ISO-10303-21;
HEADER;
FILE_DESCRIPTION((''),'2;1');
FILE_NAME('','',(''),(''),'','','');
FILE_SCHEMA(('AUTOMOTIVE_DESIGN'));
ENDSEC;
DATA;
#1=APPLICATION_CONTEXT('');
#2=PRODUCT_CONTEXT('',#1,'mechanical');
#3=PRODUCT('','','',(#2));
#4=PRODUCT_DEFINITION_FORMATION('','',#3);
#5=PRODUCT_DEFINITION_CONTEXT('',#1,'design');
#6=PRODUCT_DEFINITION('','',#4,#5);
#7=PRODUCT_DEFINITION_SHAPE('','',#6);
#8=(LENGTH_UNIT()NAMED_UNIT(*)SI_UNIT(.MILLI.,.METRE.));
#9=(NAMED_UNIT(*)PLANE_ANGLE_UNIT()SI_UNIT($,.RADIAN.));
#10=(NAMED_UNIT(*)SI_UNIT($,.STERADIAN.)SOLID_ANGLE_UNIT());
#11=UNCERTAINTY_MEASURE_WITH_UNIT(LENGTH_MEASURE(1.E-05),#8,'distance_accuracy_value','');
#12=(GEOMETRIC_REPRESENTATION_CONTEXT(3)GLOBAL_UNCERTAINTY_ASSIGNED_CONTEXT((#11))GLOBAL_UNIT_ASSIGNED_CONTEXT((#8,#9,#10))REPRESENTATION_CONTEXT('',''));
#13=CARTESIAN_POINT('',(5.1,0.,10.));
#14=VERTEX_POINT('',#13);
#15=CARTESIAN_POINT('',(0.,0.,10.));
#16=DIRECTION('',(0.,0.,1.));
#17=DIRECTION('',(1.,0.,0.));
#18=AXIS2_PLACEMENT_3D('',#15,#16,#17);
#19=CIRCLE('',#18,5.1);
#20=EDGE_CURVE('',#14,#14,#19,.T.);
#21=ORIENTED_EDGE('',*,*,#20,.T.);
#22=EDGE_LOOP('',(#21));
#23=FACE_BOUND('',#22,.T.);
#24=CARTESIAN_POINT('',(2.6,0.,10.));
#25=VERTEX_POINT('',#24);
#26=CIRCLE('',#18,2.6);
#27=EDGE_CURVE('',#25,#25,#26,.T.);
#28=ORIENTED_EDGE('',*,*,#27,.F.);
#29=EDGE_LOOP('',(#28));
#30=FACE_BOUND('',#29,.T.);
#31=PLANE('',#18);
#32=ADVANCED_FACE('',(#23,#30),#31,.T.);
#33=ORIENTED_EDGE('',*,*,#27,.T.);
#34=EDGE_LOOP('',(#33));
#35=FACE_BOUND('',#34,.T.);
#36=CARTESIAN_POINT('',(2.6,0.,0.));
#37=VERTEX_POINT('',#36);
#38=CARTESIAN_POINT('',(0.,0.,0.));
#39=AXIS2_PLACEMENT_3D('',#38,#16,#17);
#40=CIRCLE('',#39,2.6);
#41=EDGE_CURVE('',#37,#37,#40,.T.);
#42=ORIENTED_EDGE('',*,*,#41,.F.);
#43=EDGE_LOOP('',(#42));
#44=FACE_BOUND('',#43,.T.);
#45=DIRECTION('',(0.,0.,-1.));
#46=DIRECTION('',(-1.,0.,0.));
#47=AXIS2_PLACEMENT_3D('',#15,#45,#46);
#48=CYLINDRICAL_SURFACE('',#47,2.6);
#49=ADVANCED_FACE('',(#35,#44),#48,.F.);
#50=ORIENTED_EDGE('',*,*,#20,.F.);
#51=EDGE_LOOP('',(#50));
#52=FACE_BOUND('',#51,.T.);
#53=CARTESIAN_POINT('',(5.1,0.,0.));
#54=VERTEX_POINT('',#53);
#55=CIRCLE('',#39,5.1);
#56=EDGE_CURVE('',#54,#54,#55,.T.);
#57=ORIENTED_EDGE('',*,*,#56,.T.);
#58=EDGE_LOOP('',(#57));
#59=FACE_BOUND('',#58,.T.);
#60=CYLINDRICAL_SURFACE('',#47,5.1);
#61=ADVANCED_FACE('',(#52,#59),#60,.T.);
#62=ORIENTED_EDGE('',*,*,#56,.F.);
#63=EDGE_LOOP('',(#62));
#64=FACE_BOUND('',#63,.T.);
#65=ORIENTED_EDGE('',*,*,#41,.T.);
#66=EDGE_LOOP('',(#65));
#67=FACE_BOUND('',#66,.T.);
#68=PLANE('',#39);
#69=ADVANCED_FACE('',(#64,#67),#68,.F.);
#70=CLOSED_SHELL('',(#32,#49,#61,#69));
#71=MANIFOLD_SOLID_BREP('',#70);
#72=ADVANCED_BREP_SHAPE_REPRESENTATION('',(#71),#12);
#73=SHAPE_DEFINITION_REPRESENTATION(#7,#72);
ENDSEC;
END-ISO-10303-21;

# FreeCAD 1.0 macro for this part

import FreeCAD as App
import Part
import Sketcher
from FreeCAD import Vector
Q = App.Units.Quantity

doc = App.newDocument("Part")
body = doc.addObject("PartDesign::Body", "Body")

sketch1 = body.newObject("Sketcher::SketchObject", "Sketch")
sketch1.AttachmentSupport = (doc.getObject("XY_Plane"), [""])
sketch1.MapMode = "FlatFace"
sketch1.addGeometry([
    Part.Circle(Vector(0, 0, 0), Vector(0, 0, 1), 5.1),
    Part.Circle(Vector(0, 0, 0), Vector(0, 0, 1), 2.6),
], False)
sketch1.addConstraint([
    Sketcher.Constraint("Coincident", 0, 3, -1, 1),
    Sketcher.Constraint("Coincident", 1, 3, -1, 1),
    Sketcher.Constraint("Diameter", 0, Q("10.2 mm")),
    Sketcher.Constraint("Diameter", 1, Q("5.2 mm")),
])
pad1 = body.newObject("PartDesign::Pad", "Pad")
pad1.Profile = sketch1
pad1.Length = 10

doc.recompute()
